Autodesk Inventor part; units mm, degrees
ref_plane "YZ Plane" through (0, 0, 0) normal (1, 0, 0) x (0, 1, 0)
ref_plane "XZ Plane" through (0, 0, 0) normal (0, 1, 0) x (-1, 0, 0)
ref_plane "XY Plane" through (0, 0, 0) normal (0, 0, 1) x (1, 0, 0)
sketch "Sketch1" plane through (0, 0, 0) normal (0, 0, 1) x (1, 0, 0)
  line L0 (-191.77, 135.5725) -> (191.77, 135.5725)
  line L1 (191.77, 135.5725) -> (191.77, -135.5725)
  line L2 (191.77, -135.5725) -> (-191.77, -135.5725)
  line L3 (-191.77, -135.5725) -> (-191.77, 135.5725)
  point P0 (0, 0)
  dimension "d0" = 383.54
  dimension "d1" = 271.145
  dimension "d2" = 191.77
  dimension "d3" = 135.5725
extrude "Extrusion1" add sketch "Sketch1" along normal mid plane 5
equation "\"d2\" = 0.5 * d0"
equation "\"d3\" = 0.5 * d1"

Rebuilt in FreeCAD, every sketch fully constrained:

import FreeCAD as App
import Part
import Sketcher

V = App.Vector
Q = App.Units.Quantity

doc = App.newDocument("Part")
body = doc.addObject("PartDesign::Body", "Body")

sketch1 = body.newObject("Sketcher::SketchObject", "Sketch")
sketch1.AttachmentSupport = (doc.getObject("XY_Plane"), [""])
sketch1.MapMode = "FlatFace"
sketch1.addGeometry([
    Part.LineSegment(V(192, 136, 0), V(-192, 136, 0)),
    Part.LineSegment(V(-192, 136, 0), V(-192, -136, 0)),
    Part.LineSegment(V(-192, -136, 0), V(192, -136, 0)),
    Part.LineSegment(V(192, -136, 0), V(192, 136, 0)),
], False)
sketch1.addConstraint([
    Sketcher.Constraint("Coincident", 0, 2, 1, 1),
    Sketcher.Constraint("Coincident", 1, 2, 2, 1),
    Sketcher.Constraint("Coincident", 2, 2, 3, 1),
    Sketcher.Constraint("Coincident", 3, 2, 0, 1),
    Sketcher.Constraint("Horizontal", 0),
    Sketcher.Constraint("Vertical", 1),
    Sketcher.Constraint("Horizontal", 2),
    Sketcher.Constraint("Vertical", 3),
    Sketcher.Constraint("Symmetric", 0, 2, 2, 2, -1, 1),
    Sketcher.Constraint("DistanceX", 0, 2, 0, 1, Q("15.1 in")),
    Sketcher.Constraint("DistanceY", 1, 2, 1, 1, Q("10.675 in")),
])
pad1 = body.newObject("PartDesign::Pad", "Pad")
pad1.Profile = sketch1
pad1.Length = 5
pad1.Midplane = True

doc.recompute()
